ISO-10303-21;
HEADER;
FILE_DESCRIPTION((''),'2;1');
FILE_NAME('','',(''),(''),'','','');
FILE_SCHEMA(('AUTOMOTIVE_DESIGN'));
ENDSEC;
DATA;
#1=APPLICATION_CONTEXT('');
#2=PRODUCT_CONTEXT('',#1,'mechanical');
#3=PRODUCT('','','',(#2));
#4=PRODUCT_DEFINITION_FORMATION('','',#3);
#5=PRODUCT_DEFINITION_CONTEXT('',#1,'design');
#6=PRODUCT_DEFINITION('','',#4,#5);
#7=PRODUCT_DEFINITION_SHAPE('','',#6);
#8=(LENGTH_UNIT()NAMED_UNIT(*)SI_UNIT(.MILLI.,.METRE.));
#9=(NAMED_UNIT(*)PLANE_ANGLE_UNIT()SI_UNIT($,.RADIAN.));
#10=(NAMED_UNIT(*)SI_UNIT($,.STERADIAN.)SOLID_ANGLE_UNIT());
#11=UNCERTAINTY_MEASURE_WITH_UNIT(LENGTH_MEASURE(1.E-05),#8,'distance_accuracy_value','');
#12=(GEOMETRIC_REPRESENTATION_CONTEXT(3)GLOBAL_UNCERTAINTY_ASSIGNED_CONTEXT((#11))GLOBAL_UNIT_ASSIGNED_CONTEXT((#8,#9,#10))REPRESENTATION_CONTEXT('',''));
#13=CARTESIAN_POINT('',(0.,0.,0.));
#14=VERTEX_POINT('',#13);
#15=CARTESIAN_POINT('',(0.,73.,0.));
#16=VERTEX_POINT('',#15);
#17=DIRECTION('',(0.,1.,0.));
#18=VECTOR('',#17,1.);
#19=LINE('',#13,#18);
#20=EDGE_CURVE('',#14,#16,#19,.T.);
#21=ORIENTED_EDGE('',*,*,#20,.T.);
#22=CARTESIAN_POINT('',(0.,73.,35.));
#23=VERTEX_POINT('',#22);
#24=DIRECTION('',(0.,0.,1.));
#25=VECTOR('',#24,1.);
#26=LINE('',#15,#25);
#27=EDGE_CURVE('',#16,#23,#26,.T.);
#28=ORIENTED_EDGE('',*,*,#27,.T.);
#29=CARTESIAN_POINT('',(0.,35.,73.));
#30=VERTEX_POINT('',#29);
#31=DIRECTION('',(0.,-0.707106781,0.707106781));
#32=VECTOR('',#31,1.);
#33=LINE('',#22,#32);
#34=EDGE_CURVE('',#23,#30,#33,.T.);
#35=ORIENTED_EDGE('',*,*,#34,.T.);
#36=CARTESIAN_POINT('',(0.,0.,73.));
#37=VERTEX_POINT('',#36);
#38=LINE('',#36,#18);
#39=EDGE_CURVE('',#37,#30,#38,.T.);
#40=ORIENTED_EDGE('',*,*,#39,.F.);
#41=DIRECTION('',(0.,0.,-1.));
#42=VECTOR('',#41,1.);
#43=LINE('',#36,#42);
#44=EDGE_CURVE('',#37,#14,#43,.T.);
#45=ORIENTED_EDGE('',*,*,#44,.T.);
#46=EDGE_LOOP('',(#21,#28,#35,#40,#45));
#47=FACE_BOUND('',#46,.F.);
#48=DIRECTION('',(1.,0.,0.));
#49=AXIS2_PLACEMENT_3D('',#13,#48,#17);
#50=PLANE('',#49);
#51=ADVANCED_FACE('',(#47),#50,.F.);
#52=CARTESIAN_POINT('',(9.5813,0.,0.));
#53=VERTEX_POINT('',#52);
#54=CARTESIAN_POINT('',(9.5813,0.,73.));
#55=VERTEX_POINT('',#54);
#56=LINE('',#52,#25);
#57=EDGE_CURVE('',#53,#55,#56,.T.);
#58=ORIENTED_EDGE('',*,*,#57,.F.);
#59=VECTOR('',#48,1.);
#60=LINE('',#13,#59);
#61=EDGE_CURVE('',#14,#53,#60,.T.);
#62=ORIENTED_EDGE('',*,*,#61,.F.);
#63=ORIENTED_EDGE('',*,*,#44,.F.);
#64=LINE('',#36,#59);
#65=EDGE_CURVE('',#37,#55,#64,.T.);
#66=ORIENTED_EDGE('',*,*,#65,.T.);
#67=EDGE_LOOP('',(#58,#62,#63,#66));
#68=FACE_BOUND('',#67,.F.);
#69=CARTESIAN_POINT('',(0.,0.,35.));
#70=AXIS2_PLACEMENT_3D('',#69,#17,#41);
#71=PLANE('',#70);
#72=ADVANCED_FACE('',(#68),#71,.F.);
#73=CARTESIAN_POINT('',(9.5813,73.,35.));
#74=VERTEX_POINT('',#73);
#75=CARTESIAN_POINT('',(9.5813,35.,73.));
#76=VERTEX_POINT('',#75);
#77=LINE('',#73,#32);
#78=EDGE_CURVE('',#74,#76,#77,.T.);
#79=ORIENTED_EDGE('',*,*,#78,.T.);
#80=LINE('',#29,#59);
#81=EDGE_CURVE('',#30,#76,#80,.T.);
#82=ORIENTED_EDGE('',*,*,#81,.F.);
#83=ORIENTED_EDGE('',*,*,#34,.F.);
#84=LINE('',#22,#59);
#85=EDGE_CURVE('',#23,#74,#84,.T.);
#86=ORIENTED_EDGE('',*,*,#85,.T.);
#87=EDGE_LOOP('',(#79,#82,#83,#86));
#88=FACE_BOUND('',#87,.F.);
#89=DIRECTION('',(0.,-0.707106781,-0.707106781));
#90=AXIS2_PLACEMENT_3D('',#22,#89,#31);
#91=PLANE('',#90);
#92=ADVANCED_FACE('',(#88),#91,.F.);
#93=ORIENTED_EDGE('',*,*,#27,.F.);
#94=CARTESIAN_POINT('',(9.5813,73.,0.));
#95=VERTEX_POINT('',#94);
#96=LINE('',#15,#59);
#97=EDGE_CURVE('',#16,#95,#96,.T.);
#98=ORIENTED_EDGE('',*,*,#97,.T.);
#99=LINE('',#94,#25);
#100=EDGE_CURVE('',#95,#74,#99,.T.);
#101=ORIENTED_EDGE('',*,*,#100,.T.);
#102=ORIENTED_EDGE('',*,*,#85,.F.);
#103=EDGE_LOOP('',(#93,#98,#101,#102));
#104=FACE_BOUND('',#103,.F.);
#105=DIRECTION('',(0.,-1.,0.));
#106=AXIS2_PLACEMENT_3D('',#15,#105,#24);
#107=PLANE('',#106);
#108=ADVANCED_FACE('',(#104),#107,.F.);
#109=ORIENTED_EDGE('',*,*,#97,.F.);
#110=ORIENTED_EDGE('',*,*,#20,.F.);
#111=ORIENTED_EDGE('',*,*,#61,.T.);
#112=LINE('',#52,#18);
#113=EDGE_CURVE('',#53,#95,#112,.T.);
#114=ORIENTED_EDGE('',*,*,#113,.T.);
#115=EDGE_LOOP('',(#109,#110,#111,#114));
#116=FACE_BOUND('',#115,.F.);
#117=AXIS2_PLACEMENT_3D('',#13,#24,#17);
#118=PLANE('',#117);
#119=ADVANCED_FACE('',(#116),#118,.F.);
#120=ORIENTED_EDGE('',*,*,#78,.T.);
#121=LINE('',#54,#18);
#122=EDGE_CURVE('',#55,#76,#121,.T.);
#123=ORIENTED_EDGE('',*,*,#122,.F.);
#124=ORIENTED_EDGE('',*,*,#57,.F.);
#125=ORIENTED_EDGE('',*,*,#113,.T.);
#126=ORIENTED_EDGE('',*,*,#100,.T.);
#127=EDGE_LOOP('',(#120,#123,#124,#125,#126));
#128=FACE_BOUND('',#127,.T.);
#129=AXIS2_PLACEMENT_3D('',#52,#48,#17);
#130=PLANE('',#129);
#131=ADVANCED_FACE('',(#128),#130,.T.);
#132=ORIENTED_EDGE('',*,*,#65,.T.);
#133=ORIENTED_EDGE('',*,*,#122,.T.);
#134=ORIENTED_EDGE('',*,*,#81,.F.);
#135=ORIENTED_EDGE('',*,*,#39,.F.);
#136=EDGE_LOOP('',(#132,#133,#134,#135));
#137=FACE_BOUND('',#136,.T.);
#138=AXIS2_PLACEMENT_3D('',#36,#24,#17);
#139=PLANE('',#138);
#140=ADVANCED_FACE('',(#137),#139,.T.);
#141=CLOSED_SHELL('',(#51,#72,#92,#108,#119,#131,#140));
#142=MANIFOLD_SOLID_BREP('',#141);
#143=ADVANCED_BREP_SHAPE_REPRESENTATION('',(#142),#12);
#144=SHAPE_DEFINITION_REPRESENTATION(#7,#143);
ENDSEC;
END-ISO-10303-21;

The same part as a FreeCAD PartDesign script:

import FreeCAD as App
import Part
import Sketcher
from FreeCAD import Vector
Q = App.Units.Quantity

doc = App.newDocument("Part")
params = doc.addObject("Spreadsheet::Sheet", "Params")
for row, (alias, value) in enumerate([
    ("sketch1_width", "73 mm"),
    ("sketch1_width2", "35 mm"),
    ("pad1_length", "9.5813 mm"),
], start=1):
    params.set(f"A{row}", alias)
    params.set(f"B{row}", "=" + value)
    params.setAlias(f"B{row}", alias)

body = doc.addObject("PartDesign::Body", "Body")

# Sketch on YZ plane
sketch1 = doc.addObject("Sketcher::SketchObject", "Sketch")
body.addObject(sketch1)
sketch1.AttachmentSupport = (doc.YZ_Plane, [""])
sketch1.MapMode = "FlatFace"
sketch1.addGeometry(Part.LineSegment(Vector(0, 0, 0), Vector(73, 0, 0)), False)
sketch1.addGeometry(Part.LineSegment(Vector(73, 0, 0), Vector(73, 35, 0)), False)
sketch1.addGeometry(Part.LineSegment(Vector(73, 35, 0), Vector(35, 73, 0)), False)
sketch1.addGeometry(Part.LineSegment(Vector(35, 73, 0), Vector(0, 73, 0)), False)
sketch1.addGeometry(Part.LineSegment(Vector(0, 73, 0), Vector(0, 0, 0)), False)
sketch1.addConstraint(Sketcher.Constraint("Coincident", 0, 2, 1, 1))
sketch1.addConstraint(Sketcher.Constraint("Coincident", 1, 2, 2, 1))
sketch1.addConstraint(Sketcher.Constraint("Coincident", 2, 2, 3, 1))
sketch1.addConstraint(Sketcher.Constraint("Coincident", 3, 2, 4, 1))
sketch1.addConstraint(Sketcher.Constraint("Coincident", 4, 2, 0, 1))
sketch1.addConstraint(Sketcher.Constraint("Horizontal", 0))
sketch1.addConstraint(Sketcher.Constraint("Vertical", 1))
sketch1.addConstraint(Sketcher.Constraint("Horizontal", 3))
sketch1.addConstraint(Sketcher.Constraint("Vertical", 4))
sketch1.addConstraint(Sketcher.Constraint("Coincident", 4, 2, -1, 1))
sketch1.addConstraint(Sketcher.Constraint("Equal", 3, 1))
sketch1.addConstraint(Sketcher.Constraint("Equal", 0, 4))
sketch1.addConstraint(Sketcher.Constraint("DistanceX", 0, 1, 0, 2, Q("73 mm")))
sketch1.addConstraint(Sketcher.Constraint("DistanceX", 3, 2, 3, 1, Q("35 mm")))
sketch1.setExpression("Constraints[12]", "Params.sketch1_width")
sketch1.setExpression("Constraints[13]", "Params.sketch1_width2")
pad1 = doc.addObject("PartDesign::Pad", "Pad")
body.addObject(pad1)
pad1.Profile = sketch1
pad1.setExpression("Length", "Params.pad1_length")

doc.recompute()
